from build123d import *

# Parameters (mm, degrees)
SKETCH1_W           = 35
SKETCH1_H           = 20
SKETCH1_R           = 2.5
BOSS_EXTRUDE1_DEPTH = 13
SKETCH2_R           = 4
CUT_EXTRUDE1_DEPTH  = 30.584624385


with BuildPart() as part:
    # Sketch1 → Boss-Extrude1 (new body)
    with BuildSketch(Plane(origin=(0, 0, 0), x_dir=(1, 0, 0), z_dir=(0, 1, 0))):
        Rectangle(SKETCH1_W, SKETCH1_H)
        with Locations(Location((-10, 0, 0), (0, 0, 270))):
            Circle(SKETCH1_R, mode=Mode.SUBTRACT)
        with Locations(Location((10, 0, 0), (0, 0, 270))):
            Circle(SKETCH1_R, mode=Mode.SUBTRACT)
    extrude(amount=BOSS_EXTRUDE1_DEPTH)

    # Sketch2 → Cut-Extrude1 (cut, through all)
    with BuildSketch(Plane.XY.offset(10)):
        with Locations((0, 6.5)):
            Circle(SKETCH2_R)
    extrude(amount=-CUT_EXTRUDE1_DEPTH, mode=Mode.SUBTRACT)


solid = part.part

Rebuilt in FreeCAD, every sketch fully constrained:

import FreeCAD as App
import Part
import Sketcher
from FreeCAD import Vector

doc = App.newDocument("Part")
params = doc.addObject("Spreadsheet::Sheet", "Params")
for row, (alias, value) in enumerate([
    ("sketch1_diameter", "5 mm"),
    ("sketch1_width", "35 mm"),
    ("sketch1_height", "20 mm"),
    ("pad1_length", "13 mm"),
    ("sketch2_diameter", "8 mm"),
], start=1):
    params.set(f"A{row}", alias)
    params.set(f"B{row}", "=" + value)
    params.setAlias(f"B{row}", alias)

body = doc.addObject("PartDesign::Body", "Body")

# Sketch on XZ plane
sketch1 = body.newObject("Sketcher::SketchObject", "Sketch")
sketch1.AttachmentSupport = (doc.getObject("XZ_Plane"), [""])
sketch1.MapMode = "FlatFace"
sketch1.addGeometry([
    Part.LineSegment(Vector(-17.5, -10, 0), Vector(-17.5, 10, 0)),  # 0
    Part.LineSegment(Vector(-17.5, 10, 0), Vector(17.5, 10, 0)),  # 1
    Part.LineSegment(Vector(17.5, 10, 0), Vector(17.5, -10, 0)),  # 2
    Part.LineSegment(Vector(17.5, -10, 0), Vector(-17.5, -10, 0)),  # 3
    Part.Circle(Vector(-10, 0, 0), Vector(0, 0, 1), 2.5),  # 4
    Part.Circle(Vector(10, 0, 0), Vector(0, 0, 1), 2.5),  # 5
], False)
sketch1.addConstraint([
    Sketcher.Constraint("Coincident", 0, 2, 1, 1),
    Sketcher.Constraint("Coincident", 1, 2, 2, 1),
    Sketcher.Constraint("Coincident", 2, 2, 3, 1),
    Sketcher.Constraint("Coincident", 3, 2, 0, 1),
    Sketcher.Constraint("Vertical", 0),
    Sketcher.Constraint("Horizontal", 1),
    Sketcher.Constraint("Vertical", 2),
    Sketcher.Constraint("Horizontal", 3),
    Sketcher.Constraint("Equal", 4, 5),
    Sketcher.Constraint("Symmetric", 4, 3, 5, 3, -1, 1),
    Sketcher.Constraint("Symmetric", 0, 2, 2, 2, -1, 1),
    Sketcher.Constraint("PointOnObject", 4, 3, -1),
    Sketcher.Constraint("Diameter", 4, 5.0),
    Sketcher.Constraint("DistanceX", 1, 1, 1, 2, 35.0),
    Sketcher.Constraint("DistanceY", 0, 1, 0, 2, 20.0),
    Sketcher.Constraint("DistanceX", 4, 3, -1, 1, 10.0),
])
sketch1.setExpression("Constraints[12]", "Params.sketch1_diameter")
sketch1.setExpression("Constraints[13]", "Params.sketch1_width")
sketch1.setExpression("Constraints[14]", "Params.sketch1_height")
pad1 = body.newObject("PartDesign::Pad", "Pad")
pad1.Profile = sketch1
pad1.setExpression("Length", "Params.pad1_length")
pad1.Reversed = True

# Sketch on XY plane
sketch2 = body.newObject("Sketcher::SketchObject", "Sketch001")
sketch2.AttachmentSupport = (doc.getObject("XY_Plane"), [""])
sketch2.MapMode = "FlatFace"
sketch2.AttachmentOffset = App.Placement(Vector(0, 0, 10), App.Rotation())
sketch2.addGeometry(Part.Circle(Vector(0, 6.5, 0), Vector(0, 0, 1), 4), False)
sketch2.addConstraint([
    Sketcher.Constraint("PointOnObject", 0, 3, -2),
    Sketcher.Constraint("Diameter", 0, 8.0),
    Sketcher.Constraint("DistanceY", -1, 1, 0, 3, 6.5),
])
sketch2.setExpression("Constraints[1]", "Params.sketch2_diameter")
pocket1 = body.newObject("PartDesign::Pocket", "Pocket")
pocket1.Profile = sketch2
pocket1.Type = "ThroughAll"

doc.recompute()
